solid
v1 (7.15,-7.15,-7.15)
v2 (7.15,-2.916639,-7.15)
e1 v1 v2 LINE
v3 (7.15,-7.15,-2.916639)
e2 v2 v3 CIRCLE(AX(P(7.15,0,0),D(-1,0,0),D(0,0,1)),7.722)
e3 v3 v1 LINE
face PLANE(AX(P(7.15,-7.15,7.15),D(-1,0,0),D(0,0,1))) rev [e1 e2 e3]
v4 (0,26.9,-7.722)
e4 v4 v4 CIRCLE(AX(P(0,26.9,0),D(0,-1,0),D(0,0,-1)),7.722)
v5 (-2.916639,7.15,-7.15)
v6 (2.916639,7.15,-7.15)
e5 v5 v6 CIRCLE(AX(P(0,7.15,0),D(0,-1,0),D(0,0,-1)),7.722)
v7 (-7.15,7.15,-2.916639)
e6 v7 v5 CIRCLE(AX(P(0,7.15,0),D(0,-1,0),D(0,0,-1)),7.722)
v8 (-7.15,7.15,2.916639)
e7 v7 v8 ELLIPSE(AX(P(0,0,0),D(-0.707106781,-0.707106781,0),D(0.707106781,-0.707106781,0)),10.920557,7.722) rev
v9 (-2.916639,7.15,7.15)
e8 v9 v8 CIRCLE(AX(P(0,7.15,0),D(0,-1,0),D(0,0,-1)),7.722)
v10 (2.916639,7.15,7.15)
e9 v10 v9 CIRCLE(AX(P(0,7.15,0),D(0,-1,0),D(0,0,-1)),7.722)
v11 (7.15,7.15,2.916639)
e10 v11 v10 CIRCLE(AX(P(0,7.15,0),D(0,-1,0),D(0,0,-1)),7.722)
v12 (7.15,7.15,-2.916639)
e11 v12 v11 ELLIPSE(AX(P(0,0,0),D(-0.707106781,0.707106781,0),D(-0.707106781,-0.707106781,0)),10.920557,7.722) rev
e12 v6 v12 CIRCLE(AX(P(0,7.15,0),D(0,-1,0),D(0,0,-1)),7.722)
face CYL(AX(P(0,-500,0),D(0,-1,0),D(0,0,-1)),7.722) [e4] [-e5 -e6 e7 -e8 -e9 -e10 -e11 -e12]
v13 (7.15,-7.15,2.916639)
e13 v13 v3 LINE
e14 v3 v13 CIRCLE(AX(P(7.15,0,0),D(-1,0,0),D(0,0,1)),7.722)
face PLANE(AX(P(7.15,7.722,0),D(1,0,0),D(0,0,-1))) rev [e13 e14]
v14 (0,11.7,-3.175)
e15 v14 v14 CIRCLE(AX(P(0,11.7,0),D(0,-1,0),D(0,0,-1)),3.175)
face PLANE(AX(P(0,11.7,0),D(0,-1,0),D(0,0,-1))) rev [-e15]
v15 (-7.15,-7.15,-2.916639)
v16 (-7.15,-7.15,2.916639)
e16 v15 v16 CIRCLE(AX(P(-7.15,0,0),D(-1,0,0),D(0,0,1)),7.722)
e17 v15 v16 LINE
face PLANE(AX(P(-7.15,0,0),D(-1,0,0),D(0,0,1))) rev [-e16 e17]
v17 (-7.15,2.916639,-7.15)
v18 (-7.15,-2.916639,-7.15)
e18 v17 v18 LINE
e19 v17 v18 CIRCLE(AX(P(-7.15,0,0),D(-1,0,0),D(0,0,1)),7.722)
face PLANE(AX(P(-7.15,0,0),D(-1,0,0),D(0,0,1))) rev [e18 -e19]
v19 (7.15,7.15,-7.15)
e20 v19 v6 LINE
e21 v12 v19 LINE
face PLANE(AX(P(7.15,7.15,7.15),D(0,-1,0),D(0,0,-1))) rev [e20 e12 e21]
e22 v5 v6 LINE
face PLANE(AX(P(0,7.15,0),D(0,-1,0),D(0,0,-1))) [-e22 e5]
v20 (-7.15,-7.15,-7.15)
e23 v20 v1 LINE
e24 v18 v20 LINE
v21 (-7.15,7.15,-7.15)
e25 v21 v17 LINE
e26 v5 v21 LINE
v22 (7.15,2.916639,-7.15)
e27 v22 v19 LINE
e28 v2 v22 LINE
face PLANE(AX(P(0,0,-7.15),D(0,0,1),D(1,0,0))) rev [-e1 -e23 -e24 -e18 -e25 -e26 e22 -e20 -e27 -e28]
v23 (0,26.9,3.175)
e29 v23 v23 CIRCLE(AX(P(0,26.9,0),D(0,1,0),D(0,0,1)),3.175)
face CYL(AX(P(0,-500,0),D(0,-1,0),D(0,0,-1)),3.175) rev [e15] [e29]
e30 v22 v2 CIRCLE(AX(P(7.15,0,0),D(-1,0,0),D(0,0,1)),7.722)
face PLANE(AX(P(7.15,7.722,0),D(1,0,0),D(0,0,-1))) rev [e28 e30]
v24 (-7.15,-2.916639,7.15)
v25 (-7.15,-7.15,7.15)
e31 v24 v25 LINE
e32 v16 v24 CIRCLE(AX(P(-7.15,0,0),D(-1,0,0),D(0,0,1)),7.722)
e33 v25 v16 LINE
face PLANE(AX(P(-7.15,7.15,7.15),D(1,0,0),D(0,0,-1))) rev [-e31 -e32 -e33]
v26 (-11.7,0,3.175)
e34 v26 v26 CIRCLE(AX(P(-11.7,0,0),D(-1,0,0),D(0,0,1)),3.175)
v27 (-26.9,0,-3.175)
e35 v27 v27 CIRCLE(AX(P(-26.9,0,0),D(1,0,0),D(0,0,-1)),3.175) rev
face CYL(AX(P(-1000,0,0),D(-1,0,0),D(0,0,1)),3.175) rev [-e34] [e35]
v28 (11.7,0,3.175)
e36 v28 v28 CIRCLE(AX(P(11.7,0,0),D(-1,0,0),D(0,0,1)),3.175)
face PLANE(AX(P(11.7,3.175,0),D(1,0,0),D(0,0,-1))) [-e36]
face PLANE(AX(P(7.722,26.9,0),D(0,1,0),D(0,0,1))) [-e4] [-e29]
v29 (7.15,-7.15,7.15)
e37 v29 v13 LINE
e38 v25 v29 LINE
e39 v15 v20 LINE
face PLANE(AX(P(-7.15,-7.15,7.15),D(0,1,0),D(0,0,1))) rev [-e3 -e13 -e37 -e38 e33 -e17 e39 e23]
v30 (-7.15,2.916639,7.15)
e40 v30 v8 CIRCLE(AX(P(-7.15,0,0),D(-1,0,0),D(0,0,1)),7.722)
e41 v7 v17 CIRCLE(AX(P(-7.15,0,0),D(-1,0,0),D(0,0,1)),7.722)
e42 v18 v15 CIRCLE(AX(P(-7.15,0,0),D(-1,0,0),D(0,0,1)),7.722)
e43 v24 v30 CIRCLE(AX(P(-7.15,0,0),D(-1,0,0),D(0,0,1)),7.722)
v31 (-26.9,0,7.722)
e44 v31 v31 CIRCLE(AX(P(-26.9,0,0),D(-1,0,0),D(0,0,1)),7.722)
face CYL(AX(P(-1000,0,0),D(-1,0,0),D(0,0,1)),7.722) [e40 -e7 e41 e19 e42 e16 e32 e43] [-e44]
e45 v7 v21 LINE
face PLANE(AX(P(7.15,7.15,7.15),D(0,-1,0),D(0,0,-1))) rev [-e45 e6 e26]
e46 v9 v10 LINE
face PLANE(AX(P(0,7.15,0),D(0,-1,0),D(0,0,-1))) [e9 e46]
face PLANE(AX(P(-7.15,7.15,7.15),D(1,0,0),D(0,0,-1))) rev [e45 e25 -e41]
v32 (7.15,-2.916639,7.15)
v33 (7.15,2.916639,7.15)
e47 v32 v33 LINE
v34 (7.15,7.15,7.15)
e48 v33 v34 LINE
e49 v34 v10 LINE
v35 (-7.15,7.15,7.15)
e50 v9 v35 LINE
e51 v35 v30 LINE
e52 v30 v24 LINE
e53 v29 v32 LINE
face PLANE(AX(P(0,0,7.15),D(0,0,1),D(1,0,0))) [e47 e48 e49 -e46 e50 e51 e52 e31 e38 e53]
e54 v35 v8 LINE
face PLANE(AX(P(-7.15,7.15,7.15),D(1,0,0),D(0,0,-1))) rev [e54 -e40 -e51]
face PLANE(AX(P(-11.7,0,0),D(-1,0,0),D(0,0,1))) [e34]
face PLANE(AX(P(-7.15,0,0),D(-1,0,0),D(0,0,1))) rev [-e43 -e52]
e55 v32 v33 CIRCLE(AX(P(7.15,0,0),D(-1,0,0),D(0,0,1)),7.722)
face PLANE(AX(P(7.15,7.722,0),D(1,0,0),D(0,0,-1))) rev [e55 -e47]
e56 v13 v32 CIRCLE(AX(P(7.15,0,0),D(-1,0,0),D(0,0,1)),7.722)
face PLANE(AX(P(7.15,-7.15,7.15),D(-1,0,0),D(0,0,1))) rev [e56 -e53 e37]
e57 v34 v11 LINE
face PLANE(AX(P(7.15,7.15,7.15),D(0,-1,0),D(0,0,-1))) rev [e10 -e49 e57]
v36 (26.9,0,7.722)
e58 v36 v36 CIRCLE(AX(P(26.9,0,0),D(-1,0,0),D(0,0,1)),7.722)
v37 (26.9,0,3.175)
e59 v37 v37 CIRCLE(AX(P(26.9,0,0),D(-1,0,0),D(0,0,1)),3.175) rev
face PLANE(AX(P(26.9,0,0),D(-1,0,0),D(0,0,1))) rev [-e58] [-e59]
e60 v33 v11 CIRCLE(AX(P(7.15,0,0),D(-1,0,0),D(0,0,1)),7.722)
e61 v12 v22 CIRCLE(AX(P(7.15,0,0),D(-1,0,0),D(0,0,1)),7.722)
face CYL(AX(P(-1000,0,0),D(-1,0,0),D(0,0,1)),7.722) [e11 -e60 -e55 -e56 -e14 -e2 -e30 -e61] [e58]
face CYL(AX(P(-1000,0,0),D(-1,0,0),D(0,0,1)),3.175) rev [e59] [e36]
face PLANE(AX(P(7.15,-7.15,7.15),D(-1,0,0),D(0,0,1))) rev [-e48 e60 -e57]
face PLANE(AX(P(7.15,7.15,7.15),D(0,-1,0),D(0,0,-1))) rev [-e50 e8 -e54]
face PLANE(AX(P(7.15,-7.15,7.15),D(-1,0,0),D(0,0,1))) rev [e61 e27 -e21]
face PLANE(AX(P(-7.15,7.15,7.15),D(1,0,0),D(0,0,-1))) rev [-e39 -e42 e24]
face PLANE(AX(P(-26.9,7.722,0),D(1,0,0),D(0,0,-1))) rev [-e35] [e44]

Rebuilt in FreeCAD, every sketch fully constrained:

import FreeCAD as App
import Part
import Sketcher
from FreeCAD import Vector
Q = App.Units.Quantity

doc = App.newDocument("Part")
params = doc.addObject("Spreadsheet::Sheet", "Params")
for row, (alias, value) in enumerate([
    ("sketch1_width", "14.3 mm"),
    ("pad1_length", "14.3 mm"),
    ("sketch2_width", "19.75 mm"),
    ("revolution_angle", "360 deg"),
    ("sketch3_height", "19.75 mm"),
    ("revolution2_angle", "360 deg"),
    ("sketch4_width", "16.2 mm"),
    ("groove_angle", "360 deg"),
    ("sketch5_height", "16.2 mm"),
    ("groove2_angle", "360 deg"),
    ("sketch6_width", "19.75 mm"),
    ("revolution3_angle", "360 deg"),
    ("sketch7_width", "16.2 mm"),
    ("groove3_angle", "360 deg"),
], start=1):
    params.set(f"A{row}", alias)
    params.set(f"B{row}", "=" + value)
    params.setAlias(f"B{row}", alias)

body = doc.addObject("PartDesign::Body", "Body")

sketch1 = body.newObject("Sketcher::SketchObject", "Sketch")
sketch1.AttachmentSupport = (doc.getObject("XY_Plane"), [""])
sketch1.MapMode = "FlatFace"
sketch1.addGeometry([
    Part.LineSegment(Vector(-7.15, 7.15, 0), Vector(-7.15, -7.15, 0)),
    Part.LineSegment(Vector(-7.15, -7.15, 0), Vector(7.15, -7.15, 0)),
    Part.LineSegment(Vector(7.15, -7.15, 0), Vector(7.15, 7.15, 0)),
    Part.LineSegment(Vector(7.15, 7.15, 0), Vector(-7.15, 7.15, 0)),
], False)
sketch1.addConstraint([
    Sketcher.Constraint("Coincident", 0, 2, 1, 1),
    Sketcher.Constraint("Coincident", 1, 2, 2, 1),
    Sketcher.Constraint("Coincident", 2, 2, 3, 1),
    Sketcher.Constraint("Coincident", 3, 2, 0, 1),
    Sketcher.Constraint("Vertical", 0),
    Sketcher.Constraint("Horizontal", 1),
    Sketcher.Constraint("Vertical", 2),
    Sketcher.Constraint("Horizontal", 3),
    Sketcher.Constraint("Symmetric", 0, 2, 2, 2, -1, 1),
    Sketcher.Constraint("Equal", 3, 0),
    Sketcher.Constraint("DistanceX", 1, 1, 1, 2, Q("14.3 mm")),
])
sketch1.setExpression("Constraints[10]", "Params.sketch1_width")
pad1 = body.newObject("PartDesign::Pad", "Pad")
pad1.Profile = sketch1
pad1.setExpression("Length", "Params.pad1_length")
pad1.Midplane = True

sketch2 = body.newObject("Sketcher::SketchObject", "Sketch001")
sketch2.AttachmentSupport = (doc.getObject("XY_Plane"), [""])
sketch2.MapMode = "FlatFace"
sketch2.addGeometry([
    Part.LineSegment(Vector(7.15, 7.722, 0), Vector(7.15, 0, 0)),
    Part.LineSegment(Vector(7.15, 0, 0), Vector(26.9, 0, 0)),
    Part.LineSegment(Vector(26.9, 0, 0), Vector(26.9, 7.722, 0)),
    Part.LineSegment(Vector(26.9, 7.722, 0), Vector(7.15, 7.722, 0)),
], False)
sketch2.addConstraint([
    Sketcher.Constraint("Coincident", 0, 2, 1, 1),
    Sketcher.Constraint("Coincident", 1, 2, 2, 1),
    Sketcher.Constraint("Coincident", 2, 2, 3, 1),
    Sketcher.Constraint("Coincident", 3, 2, 0, 1),
    Sketcher.Constraint("Vertical", 0),
    Sketcher.Constraint("Horizontal", 1),
    Sketcher.Constraint("Vertical", 2),
    Sketcher.Constraint("Horizontal", 3),
    Sketcher.Constraint("PointOnObject", 0, 2, -1),
    Sketcher.Constraint("DistanceX", 1, 1, 1, 2, Q("19.75 mm")),
    Sketcher.Constraint("DistanceX", -1, 1, 1, 2, Q("26.9 mm")),
    Sketcher.Constraint("DistanceY", 0, 2, 0, 1, Q("7.722 mm")),
])
sketch2.setExpression("Constraints[9]", "Params.sketch2_width")
revolution = body.newObject("PartDesign::Revolution", "Revolution")
revolution.Profile = sketch2
revolution.ReferenceAxis = (sketch2, ["H_Axis"])
revolution.setExpression("Angle", "Params.revolution_angle")

sketch3 = body.newObject("Sketcher::SketchObject", "Sketch002")
sketch3.AttachmentSupport = (doc.getObject("XY_Plane"), [""])
sketch3.MapMode = "FlatFace"
sketch3.addGeometry([
    Part.LineSegment(Vector(0, 26.9, 0), Vector(0, 7.15, 0)),
    Part.LineSegment(Vector(0, 7.15, 0), Vector(7.722, 7.15, 0)),
    Part.LineSegment(Vector(7.722, 7.15, 0), Vector(7.722, 26.9, 0)),
    Part.LineSegment(Vector(7.722, 26.9, 0), Vector(0, 26.9, 0)),
], False)
sketch3.addConstraint([
    Sketcher.Constraint("Coincident", 0, 2, 1, 1),
    Sketcher.Constraint("Coincident", 1, 2, 2, 1),
    Sketcher.Constraint("Coincident", 2, 2, 3, 1),
    Sketcher.Constraint("Coincident", 3, 2, 0, 1),
    Sketcher.Constraint("Vertical", 0),
    Sketcher.Constraint("Horizontal", 1),
    Sketcher.Constraint("Vertical", 2),
    Sketcher.Constraint("Horizontal", 3),
    Sketcher.Constraint("PointOnObject", 0, 2, -2),
    Sketcher.Constraint("DistanceY", 0, 2, 0, 1, Q("19.75 mm")),
    Sketcher.Constraint("DistanceY", -1, 1, 2, 2, Q("26.9 mm")),
    Sketcher.Constraint("DistanceX", 1, 1, 1, 2, Q("7.722 mm")),
])
sketch3.setExpression("Constraints[9]", "Params.sketch3_height")
revolution2 = body.newObject("PartDesign::Revolution", "Revolution001")
revolution2.Profile = sketch3
revolution2.ReferenceAxis = (sketch3, ["V_Axis"])
revolution2.setExpression("Angle", "Params.revolution2_angle")

sketch4 = body.newObject("Sketcher::SketchObject", "Sketch003")
sketch4.AttachmentSupport = (doc.getObject("XY_Plane"), [""])
sketch4.MapMode = "FlatFace"
sketch4.addGeometry([
    Part.LineSegment(Vector(11.7, 3.175, 0), Vector(11.7, 0, 0)),
    Part.LineSegment(Vector(11.7, 0, 0), Vector(27.9, 0, 0)),
    Part.LineSegment(Vector(27.9, 0, 0), Vector(27.9, 3.175, 0)),
    Part.LineSegment(Vector(27.9, 3.175, 0), Vector(11.7, 3.175, 0)),
], False)
sketch4.addConstraint([
    Sketcher.Constraint("Coincident", 0, 2, 1, 1),
    Sketcher.Constraint("Coincident", 1, 2, 2, 1),
    Sketcher.Constraint("Coincident", 2, 2, 3, 1),
    Sketcher.Constraint("Coincident", 3, 2, 0, 1),
    Sketcher.Constraint("Vertical", 0),
    Sketcher.Constraint("Horizontal", 1),
    Sketcher.Constraint("Vertical", 2),
    Sketcher.Constraint("Horizontal", 3),
    Sketcher.Constraint("PointOnObject", 0, 2, -1),
    Sketcher.Constraint("DistanceX", 1, 1, 1, 2, Q("16.2 mm")),
    Sketcher.Constraint("DistanceX", -1, 1, 0, 2, Q("11.7 mm")),
    Sketcher.Constraint("DistanceY", 0, 2, 0, 1, Q("3.175 mm")),
])
sketch4.setExpression("Constraints[9]", "Params.sketch4_width")
groove = body.newObject("PartDesign::Groove", "Groove")
groove.Profile = sketch4
groove.ReferenceAxis = (sketch4, ["H_Axis"])
groove.setExpression("Angle", "Params.groove_angle")

sketch5 = body.newObject("Sketcher::SketchObject", "Sketch004")
sketch5.AttachmentSupport = (doc.getObject("XY_Plane"), [""])
sketch5.MapMode = "FlatFace"
sketch5.addGeometry([
    Part.LineSegment(Vector(0, 27.9, 0), Vector(0, 11.7, 0)),
    Part.LineSegment(Vector(0, 11.7, 0), Vector(3.175, 11.7, 0)),
    Part.LineSegment(Vector(3.175, 11.7, 0), Vector(3.175, 27.9, 0)),
    Part.LineSegment(Vector(3.175, 27.9, 0), Vector(0, 27.9, 0)),
], False)
sketch5.addConstraint([
    Sketcher.Constraint("Coincident", 0, 2, 1, 1),
    Sketcher.Constraint("Coincident", 1, 2, 2, 1),
    Sketcher.Constraint("Coincident", 2, 2, 3, 1),
    Sketcher.Constraint("Coincident", 3, 2, 0, 1),
    Sketcher.Constraint("Vertical", 0),
    Sketcher.Constraint("Horizontal", 1),
    Sketcher.Constraint("Vertical", 2),
    Sketcher.Constraint("Horizontal", 3),
    Sketcher.Constraint("PointOnObject", 0, 2, -2),
    Sketcher.Constraint("DistanceY", 0, 2, 0, 1, Q("16.2 mm")),
    Sketcher.Constraint("DistanceY", -1, 1, 0, 2, Q("11.7 mm")),
    Sketcher.Constraint("DistanceX", 1, 1, 1, 2, Q("3.175 mm")),
])
sketch5.setExpression("Constraints[9]", "Params.sketch5_height")
groove2 = body.newObject("PartDesign::Groove", "Groove001")
groove2.Profile = sketch5
groove2.ReferenceAxis = (sketch5, ["V_Axis"])
groove2.setExpression("Angle", "Params.groove2_angle")

sketch6 = body.newObject("Sketcher::SketchObject", "Sketch005")
sketch6.AttachmentSupport = (doc.getObject("XY_Plane"), [""])
sketch6.MapMode = "FlatFace"
sketch6.addGeometry([
    Part.LineSegment(Vector(-26.9, 7.722, 0), Vector(-26.9, 0, 0)),
    Part.LineSegment(Vector(-26.9, 0, 0), Vector(-7.15, 0, 0)),
    Part.LineSegment(Vector(-7.15, 0, 0), Vector(-7.15, 7.722, 0)),
    Part.LineSegment(Vector(-7.15, 7.722, 0), Vector(-26.9, 7.722, 0)),
], False)
sketch6.addConstraint([
    Sketcher.Constraint("Coincident", 0, 2, 1, 1),
    Sketcher.Constraint("Coincident", 1, 2, 2, 1),
    Sketcher.Constraint("Coincident", 2, 2, 3, 1),
    Sketcher.Constraint("Coincident", 3, 2, 0, 1),
    Sketcher.Constraint("Vertical", 0),
    Sketcher.Constraint("Horizontal", 1),
    Sketcher.Constraint("Vertical", 2),
    Sketcher.Constraint("Horizontal", 3),
    Sketcher.Constraint("PointOnObject", 0, 2, -1),
    Sketcher.Constraint("DistanceX", 1, 1, 1, 2, Q("19.75 mm")),
    Sketcher.Constraint("DistanceX", 0, 2, -1, 1, Q("26.9 mm")),
    Sketcher.Constraint("DistanceY", 0, 2, 0, 1, Q("7.722 mm")),
])
sketch6.setExpression("Constraints[9]", "Params.sketch6_width")
revolution3 = body.newObject("PartDesign::Revolution", "Revolution002")
revolution3.Profile = sketch6
revolution3.ReferenceAxis = (sketch6, ["H_Axis"])
revolution3.setExpression("Angle", "Params.revolution3_angle")

sketch7 = body.newObject("Sketcher::SketchObject", "Sketch006")
sketch7.AttachmentSupport = (doc.getObject("XY_Plane"), [""])
sketch7.MapMode = "FlatFace"
sketch7.addGeometry([
    Part.LineSegment(Vector(-27.9, 3.175, 0), Vector(-27.9, 0, 0)),
    Part.LineSegment(Vector(-27.9, 0, 0), Vector(-11.7, 0, 0)),
    Part.LineSegment(Vector(-11.7, 0, 0), Vector(-11.7, 3.175, 0)),
    Part.LineSegment(Vector(-11.7, 3.175, 0), Vector(-27.9, 3.175, 0)),
], False)
sketch7.addConstraint([
    Sketcher.Constraint("Coincident", 0, 2, 1, 1),
    Sketcher.Constraint("Coincident", 1, 2, 2, 1),
    Sketcher.Constraint("Coincident", 2, 2, 3, 1),
    Sketcher.Constraint("Coincident", 3, 2, 0, 1),
    Sketcher.Constraint("Vertical", 0),
    Sketcher.Constraint("Horizontal", 1),
    Sketcher.Constraint("Vertical", 2),
    Sketcher.Constraint("Horizontal", 3),
    Sketcher.Constraint("PointOnObject", 0, 2, -1),
    Sketcher.Constraint("DistanceX", 1, 1, 1, 2, Q("16.2 mm")),
    Sketcher.Constraint("DistanceX", 0, 2, -1, 1, Q("27.9 mm")),
    Sketcher.Constraint("DistanceY", 0, 2, 0, 1, Q("3.175 mm")),
])
sketch7.setExpression("Constraints[9]", "Params.sketch7_width")
groove3 = body.newObject("PartDesign::Groove", "Groove002")
groove3.Profile = sketch7
groove3.ReferenceAxis = (sketch7, ["H_Axis"])
groove3.setExpression("Angle", "Params.groove3_angle")

doc.recompute()
